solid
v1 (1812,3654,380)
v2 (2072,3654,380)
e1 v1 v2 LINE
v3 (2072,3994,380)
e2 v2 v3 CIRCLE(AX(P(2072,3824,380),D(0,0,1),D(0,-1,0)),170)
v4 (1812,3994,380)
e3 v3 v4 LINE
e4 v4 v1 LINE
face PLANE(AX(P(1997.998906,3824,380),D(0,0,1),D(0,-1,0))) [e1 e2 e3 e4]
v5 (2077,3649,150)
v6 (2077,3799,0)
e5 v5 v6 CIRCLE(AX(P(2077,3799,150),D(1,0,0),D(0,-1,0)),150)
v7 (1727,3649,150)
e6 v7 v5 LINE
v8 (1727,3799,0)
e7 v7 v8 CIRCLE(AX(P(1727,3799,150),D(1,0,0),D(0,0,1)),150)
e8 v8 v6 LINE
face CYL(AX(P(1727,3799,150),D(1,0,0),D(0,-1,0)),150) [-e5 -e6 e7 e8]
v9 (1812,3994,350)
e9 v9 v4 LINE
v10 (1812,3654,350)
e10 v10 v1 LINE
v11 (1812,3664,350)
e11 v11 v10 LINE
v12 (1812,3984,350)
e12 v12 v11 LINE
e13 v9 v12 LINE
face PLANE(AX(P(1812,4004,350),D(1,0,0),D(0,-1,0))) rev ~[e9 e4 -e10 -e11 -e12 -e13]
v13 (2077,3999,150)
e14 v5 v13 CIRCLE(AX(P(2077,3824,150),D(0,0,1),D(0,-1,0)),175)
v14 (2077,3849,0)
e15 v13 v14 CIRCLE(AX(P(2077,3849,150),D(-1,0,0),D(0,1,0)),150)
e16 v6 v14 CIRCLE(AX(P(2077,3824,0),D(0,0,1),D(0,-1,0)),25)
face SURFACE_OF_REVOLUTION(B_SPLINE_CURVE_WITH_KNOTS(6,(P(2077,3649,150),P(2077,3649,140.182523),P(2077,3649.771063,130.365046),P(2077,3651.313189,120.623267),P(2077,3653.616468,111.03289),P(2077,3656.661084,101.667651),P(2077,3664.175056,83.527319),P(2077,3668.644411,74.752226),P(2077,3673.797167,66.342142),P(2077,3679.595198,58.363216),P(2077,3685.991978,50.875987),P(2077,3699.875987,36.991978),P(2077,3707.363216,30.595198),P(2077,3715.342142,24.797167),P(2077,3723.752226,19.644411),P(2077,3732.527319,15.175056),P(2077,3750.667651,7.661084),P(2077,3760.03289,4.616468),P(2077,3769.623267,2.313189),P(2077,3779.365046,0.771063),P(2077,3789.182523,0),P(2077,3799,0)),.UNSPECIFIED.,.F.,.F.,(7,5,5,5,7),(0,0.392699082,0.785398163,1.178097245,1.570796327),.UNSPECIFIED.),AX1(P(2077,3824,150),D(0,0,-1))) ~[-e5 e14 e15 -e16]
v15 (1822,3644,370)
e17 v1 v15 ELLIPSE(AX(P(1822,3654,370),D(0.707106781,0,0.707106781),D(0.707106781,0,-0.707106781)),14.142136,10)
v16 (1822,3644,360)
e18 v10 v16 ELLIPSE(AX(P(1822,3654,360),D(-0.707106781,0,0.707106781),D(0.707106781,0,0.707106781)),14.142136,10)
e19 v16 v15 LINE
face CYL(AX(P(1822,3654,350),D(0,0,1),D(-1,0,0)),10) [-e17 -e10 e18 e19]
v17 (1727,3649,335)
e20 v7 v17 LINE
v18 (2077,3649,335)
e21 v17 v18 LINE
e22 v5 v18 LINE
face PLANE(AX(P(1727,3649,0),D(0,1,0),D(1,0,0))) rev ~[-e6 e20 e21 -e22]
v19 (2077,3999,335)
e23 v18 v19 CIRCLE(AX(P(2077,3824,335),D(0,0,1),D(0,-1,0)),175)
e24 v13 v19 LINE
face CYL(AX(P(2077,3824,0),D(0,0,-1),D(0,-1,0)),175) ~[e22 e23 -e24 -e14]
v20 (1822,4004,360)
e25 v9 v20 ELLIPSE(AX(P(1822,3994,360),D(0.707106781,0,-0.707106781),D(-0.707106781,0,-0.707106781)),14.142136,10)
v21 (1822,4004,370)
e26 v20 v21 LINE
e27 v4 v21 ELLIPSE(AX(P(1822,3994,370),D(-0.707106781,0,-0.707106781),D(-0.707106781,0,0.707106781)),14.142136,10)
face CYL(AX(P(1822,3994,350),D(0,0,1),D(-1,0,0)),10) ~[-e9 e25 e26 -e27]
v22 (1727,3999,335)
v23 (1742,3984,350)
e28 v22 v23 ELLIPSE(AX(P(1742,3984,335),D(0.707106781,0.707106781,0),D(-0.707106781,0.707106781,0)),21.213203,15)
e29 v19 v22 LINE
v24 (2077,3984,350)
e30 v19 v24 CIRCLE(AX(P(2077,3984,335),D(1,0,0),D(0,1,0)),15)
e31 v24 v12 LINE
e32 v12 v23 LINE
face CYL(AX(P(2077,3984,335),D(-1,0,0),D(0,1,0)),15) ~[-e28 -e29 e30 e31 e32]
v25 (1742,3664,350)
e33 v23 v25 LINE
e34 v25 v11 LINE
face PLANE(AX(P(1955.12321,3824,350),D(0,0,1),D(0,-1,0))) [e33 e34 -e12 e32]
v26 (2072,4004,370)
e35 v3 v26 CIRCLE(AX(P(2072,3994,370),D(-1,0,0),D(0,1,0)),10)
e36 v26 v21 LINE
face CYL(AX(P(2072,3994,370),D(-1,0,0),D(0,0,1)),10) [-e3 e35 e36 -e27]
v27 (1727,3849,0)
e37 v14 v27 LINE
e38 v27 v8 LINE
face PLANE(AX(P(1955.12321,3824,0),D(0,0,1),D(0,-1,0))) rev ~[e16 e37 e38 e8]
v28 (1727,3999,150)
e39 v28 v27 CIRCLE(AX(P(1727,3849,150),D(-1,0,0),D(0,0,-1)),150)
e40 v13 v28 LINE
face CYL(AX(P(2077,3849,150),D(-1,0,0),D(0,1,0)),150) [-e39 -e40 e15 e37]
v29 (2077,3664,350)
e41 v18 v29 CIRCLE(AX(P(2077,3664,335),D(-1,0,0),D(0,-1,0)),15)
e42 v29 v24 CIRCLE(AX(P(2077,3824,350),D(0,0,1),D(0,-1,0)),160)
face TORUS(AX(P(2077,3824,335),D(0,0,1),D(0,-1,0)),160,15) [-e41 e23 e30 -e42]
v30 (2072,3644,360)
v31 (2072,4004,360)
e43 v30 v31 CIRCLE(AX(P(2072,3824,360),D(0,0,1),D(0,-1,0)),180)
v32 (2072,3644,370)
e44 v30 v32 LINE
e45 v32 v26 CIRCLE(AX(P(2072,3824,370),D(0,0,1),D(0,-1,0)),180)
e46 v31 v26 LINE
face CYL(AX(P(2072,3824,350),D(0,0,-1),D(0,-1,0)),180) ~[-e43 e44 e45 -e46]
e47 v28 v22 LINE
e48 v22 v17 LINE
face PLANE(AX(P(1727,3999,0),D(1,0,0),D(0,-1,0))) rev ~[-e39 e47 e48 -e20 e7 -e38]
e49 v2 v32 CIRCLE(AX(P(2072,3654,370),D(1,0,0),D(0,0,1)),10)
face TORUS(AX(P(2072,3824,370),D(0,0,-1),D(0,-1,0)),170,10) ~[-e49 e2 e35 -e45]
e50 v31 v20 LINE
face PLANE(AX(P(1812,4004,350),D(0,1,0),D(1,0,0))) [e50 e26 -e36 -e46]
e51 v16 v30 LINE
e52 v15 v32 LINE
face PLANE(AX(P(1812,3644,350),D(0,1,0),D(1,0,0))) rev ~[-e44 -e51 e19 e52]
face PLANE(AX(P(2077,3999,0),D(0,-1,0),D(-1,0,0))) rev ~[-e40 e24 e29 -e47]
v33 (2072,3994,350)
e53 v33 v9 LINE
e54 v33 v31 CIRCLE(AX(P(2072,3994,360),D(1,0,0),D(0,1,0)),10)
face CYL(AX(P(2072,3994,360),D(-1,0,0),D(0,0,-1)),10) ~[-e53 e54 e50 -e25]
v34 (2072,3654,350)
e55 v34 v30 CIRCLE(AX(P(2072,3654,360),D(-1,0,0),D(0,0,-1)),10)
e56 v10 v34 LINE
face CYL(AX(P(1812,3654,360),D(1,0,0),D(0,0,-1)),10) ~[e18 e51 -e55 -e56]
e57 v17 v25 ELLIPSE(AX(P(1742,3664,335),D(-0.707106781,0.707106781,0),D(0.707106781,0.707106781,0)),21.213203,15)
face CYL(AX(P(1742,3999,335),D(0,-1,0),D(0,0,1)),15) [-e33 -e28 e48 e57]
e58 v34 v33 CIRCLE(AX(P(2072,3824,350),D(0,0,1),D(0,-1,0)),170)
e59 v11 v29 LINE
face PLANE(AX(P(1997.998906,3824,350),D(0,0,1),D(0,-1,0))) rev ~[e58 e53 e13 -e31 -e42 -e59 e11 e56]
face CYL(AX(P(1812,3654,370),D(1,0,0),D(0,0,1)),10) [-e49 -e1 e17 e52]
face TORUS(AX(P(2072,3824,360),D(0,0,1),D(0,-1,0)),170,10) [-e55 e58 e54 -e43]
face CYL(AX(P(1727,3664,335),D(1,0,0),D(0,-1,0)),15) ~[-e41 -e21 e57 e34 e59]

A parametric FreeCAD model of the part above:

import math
import FreeCAD as App
import Part
import Sketcher
from FreeCAD import Vector


def edges_at(feature, points):
    """Names of the edges that pass closest to the given points."""
    edges = feature.Shape.Edges
    near = lambda p: min(range(len(edges)), key=lambda i: edges[i].distToShape(Part.Vertex(*p))[0])
    return sorted({f"Edge{near(p) + 1}" for p in points})

doc = App.newDocument("Part")
body = doc.addObject("PartDesign::Body", "Body")

sketch1 = doc.addObject("Sketcher::SketchObject", "Sketch")
body.addObject(sketch1)
sketch1.AttachmentSupport = (doc.XY_Plane, [""])
sketch1.MapMode = "FlatFace"
sketch1.addGeometry([
    Part.LineSegment(Vector(0, 350, 0), Vector(0, 0, 0)),
    Part.LineSegment(Vector(0, 0, 0), Vector(350, 0, 0)),
    Part.LineSegment(Vector(350, 0, 0), Vector(350, 350, 0)),
    Part.ArcOfCircle(Part.Circle(Vector(175, 350, 0), Vector(0, 0, 1), 175), math.radians(0), math.radians(180)),
], False)
sketch1.addConstraint([
    Sketcher.Constraint("Coincident", 0, 2, 1, 1),
    Sketcher.Constraint("Coincident", 1, 2, 2, 1),
    Sketcher.Constraint("Tangent", 2, 2, 3, 1),
    Sketcher.Constraint("Tangent", 3, 2, 0, 1),
    Sketcher.Constraint("Vertical", 0),
    Sketcher.Constraint("Horizontal", 1),
    Sketcher.Constraint("Vertical", 2),
    Sketcher.Constraint("Coincident", 0, 2, -1, 1),
    Sketcher.Constraint("Equal", 1, 0),
    Sketcher.Constraint("Radius", 3, 175.0),
])
pad1 = doc.addObject("PartDesign::Pad", "Pad")
body.addObject(pad1)
pad1.Profile = sketch1
pad1.Length = 350
doc.recompute()

fillet = doc.addObject("PartDesign::Fillet", "Fillet")
body.addObject(fillet)
fillet.Base = (pad1, edges_at(pad1, [(350, 175, 0), (175, 525, 0), (0, 175, 0)]))
fillet.Radius = 150
doc.recompute()

fillet2 = doc.addObject("PartDesign::Fillet", "Fillet001")
body.addObject(fillet2)
fillet2.Base = (fillet, edges_at(fillet, [
    (0, 175, 350),
    (175, 0, 350),
    (350, 175, 350),
    (175, 525, 350),
]))
fillet2.Radius = 15

sketch2 = doc.addObject("Sketcher::SketchObject", "Sketch001")
body.addObject(sketch2)
sketch2.AttachmentSupport = (doc.XY_Plane, [""])
sketch2.MapMode = "FlatFace"
sketch2.AttachmentOffset = App.Placement(Vector(0, 0, 350), App.Rotation())
sketch2.addGeometry([
    Part.LineSegment(Vector(-5, 85, 0), Vector(355, 85, 0)),
    Part.LineSegment(Vector(355, 85, 0), Vector(355, 345, 0)),
    Part.ArcOfCircle(Part.Circle(Vector(175, 345, 0), Vector(0, 0, 1), 180), math.radians(0), math.radians(180)),
    Part.LineSegment(Vector(-5, 345, 0), Vector(-5, 85, 0)),
], False)
sketch2.addConstraint([
    Sketcher.Constraint("Coincident", 0, 2, 1, 1),
    Sketcher.Constraint("Tangent", 1, 2, 2, 1),
    Sketcher.Constraint("Tangent", 2, 2, 3, 1),
    Sketcher.Constraint("Coincident", 3, 2, 0, 1),
    Sketcher.Constraint("Horizontal", 0),
    Sketcher.Constraint("Vertical", 1),
    Sketcher.Constraint("Vertical", 3),
    Sketcher.Constraint("Radius", 2, 180.0),
    Sketcher.Constraint("DistanceY", 1, 1, 1, 2, 260.0),
    Sketcher.Constraint("DistanceX", -1, 1, 2, 3, 175.0),
    Sketcher.Constraint("DistanceY", -1, 1, 2, 3, 345.0),
])
pad2 = doc.addObject("PartDesign::Pad", "Pad001")
body.addObject(pad2)
pad2.Profile = sketch2
pad2.Length = 30
doc.recompute()

fillet3 = doc.addObject("PartDesign::Fillet", "Fillet002")
body.addObject(fillet3)
fillet3.Base = (pad2, edges_at(pad2, [
    (355, 345, 365),
    (-5, 345, 365),
    (175, 525, 350),
    (175, 525, 380),
    (-5, 85, 365),
    (-5, 215, 350),
    (-5, 215, 380),
    (355, 85, 365),
    (355, 215, 350),
    (355, 215, 380),
]))
fillet3.Radius = 10
body2 = doc.addObject("PartDesign::Body", "Body001")
doc.recompute()

body.Placement = App.Placement(Vector(1727, 3999, 0), App.Rotation(Vector(0, 0, 1), 270))
boolean = doc.addObject("PartDesign::Boolean", "Boolean")
body2.addObject(boolean)
boolean.Type = "Fuse"
boolean.addObjects([body])

doc.recompute()
